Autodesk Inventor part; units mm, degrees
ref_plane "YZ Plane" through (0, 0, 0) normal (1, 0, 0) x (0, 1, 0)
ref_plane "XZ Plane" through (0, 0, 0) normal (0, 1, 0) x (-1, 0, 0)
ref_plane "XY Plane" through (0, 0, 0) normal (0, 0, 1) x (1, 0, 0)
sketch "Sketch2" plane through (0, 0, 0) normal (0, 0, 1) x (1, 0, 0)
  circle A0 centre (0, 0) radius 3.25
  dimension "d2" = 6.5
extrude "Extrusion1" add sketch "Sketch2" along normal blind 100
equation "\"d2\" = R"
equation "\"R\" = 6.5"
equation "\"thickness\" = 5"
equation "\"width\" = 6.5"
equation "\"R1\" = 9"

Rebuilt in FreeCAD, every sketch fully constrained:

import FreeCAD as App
import Part
import Sketcher
from FreeCAD import Vector
Q = App.Units.Quantity

doc = App.newDocument("Part")
body = doc.addObject("PartDesign::Body", "Body")

sketch1 = body.newObject("Sketcher::SketchObject", "Sketch")
sketch1.AttachmentSupport = (doc.getObject("XY_Plane"), [""])
sketch1.MapMode = "FlatFace"
sketch1.addGeometry(Part.Circle(Vector(0, 0, 0), Vector(0, 0, 1), 3.2), False)
sketch1.addConstraint([
    Sketcher.Constraint("Coincident", 0, 3, -1, 1),
    Sketcher.Constraint("Diameter", 0, Q("0.2559 in")),
])
pad1 = body.newObject("PartDesign::Pad", "Pad")
pad1.Profile = sketch1
pad1.Length = Q("3.9370079 in")

doc.recompute()
